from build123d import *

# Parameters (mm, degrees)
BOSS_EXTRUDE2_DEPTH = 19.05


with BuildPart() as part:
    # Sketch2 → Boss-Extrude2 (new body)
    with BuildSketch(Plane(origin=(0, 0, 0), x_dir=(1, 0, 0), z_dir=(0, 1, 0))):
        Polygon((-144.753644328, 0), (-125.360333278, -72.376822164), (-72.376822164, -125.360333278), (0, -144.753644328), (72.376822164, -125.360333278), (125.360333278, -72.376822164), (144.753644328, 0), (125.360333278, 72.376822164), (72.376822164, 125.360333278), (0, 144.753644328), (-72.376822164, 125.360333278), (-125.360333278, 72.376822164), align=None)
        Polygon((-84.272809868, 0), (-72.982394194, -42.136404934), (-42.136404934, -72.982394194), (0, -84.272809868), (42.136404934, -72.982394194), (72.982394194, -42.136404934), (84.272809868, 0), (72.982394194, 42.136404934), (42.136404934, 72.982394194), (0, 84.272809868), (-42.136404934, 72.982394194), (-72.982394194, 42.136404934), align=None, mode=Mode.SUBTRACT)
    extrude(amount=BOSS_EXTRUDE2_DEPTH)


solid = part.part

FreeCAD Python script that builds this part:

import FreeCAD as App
import Part
import Sketcher

V = App.Vector
Q = App.Units.Quantity


def add_polygon(sketch, points):
    """Adds a closed chain of lines whose ends are joined by coincident constraints."""
    first, n = sketch.GeometryCount, len(points)
    for a, b in zip(points, points[1:] + points[:1]):
        sketch.addGeometry(Part.LineSegment(App.Vector(*a, 0), App.Vector(*b, 0)), False)
    for i in range(n):
        sketch.addConstraint(Sketcher.Constraint("Coincident", first + i, 2, first + (i + 1) % n, 1))

doc = App.newDocument("Part")
body = doc.addObject("PartDesign::Body", "Body")

sketch1 = body.newObject("Sketcher::SketchObject", "Sketch")
sketch1.AttachmentSupport = (doc.getObject("XZ_Plane"), [""])
sketch1.MapMode = "FlatFace"
add_polygon(sketch1, [(-145, 0), (-125, 72), (-72, 125), (0, 145), (72, 125), (125, 72), (145, 0), (125, -72), (72, -125), (0, -145), (-72, -125), (-125, -72)])
add_polygon(sketch1, [(-73, 42), (-84, 0), (-73, -42), (-42, -73), (0, -84), (42, -73), (73, -42), (84, 0), (73, 42), (42, 73), (0, 84), (-42, 73)])
sketch1.addConstraint([
    Sketcher.Constraint("Symmetric", 0, 2, 6, 2, -1, 1),
    Sketcher.Constraint("Symmetric", 1, 2, 7, 2, -1, 1),
    Sketcher.Constraint("Symmetric", 2, 2, 8, 2, -1, 1),
    Sketcher.Constraint("Symmetric", 3, 2, 9, 2, -1, 1),
    Sketcher.Constraint("Symmetric", 4, 2, 10, 2, -1, 1),
    Sketcher.Constraint("Symmetric", 5, 2, 11, 2, -1, 1),
    Sketcher.Constraint("Symmetric", 12, 2, 18, 2, -1, 1),
    Sketcher.Constraint("Symmetric", 13, 2, 19, 2, -1, 1),
    Sketcher.Constraint("Symmetric", 14, 2, 20, 2, -1, 1),
    Sketcher.Constraint("Symmetric", 15, 2, 21, 2, -1, 1),
    Sketcher.Constraint("Symmetric", 16, 2, 22, 2, -1, 1),
    Sketcher.Constraint("Symmetric", 17, 2, 23, 2, -1, 1),
    Sketcher.Constraint("Symmetric", 1, 2, 3, 2, -2),
    Sketcher.Constraint("Symmetric", 0, 2, 4, 2, -2),
    Sketcher.Constraint("Symmetric", 14, 2, 16, 2, -2),
    Sketcher.Constraint("Symmetric", 13, 2, 17, 2, -2),
    Sketcher.Constraint("PointOnObject", 2, 2, -2),
    Sketcher.Constraint("PointOnObject", 5, 2, -1),
    Sketcher.Constraint("PointOnObject", 12, 2, -1),
    Sketcher.Constraint("PointOnObject", 15, 2, -2),
    Sketcher.Constraint("Perpendicular", 0, 3),
    Sketcher.Constraint("Perpendicular", 1, 4),
    Sketcher.Constraint("Perpendicular", 9, 12),
    Sketcher.Constraint("Parallel", 10, 14),
    Sketcher.Constraint("Perpendicular", 12, 15),
    Sketcher.Constraint("Equal", 0, 1),
    Sketcher.Constraint("Equal", 1, 2),
    Sketcher.Constraint("Equal", 13, 14),
    Sketcher.Constraint("Equal", 14, 15),
    Sketcher.Constraint("Angle", 0, Q("75 deg")),
    Sketcher.Constraint("Distance", 0, Q("2.95 in")),
    Sketcher.Constraint("DistanceX", 12, 2, -1, 1, 84.27281),
])
pad1 = body.newObject("PartDesign::Pad", "Pad")
pad1.Profile = sketch1
pad1.Length = Q("0.75 in")
pad1.Reversed = True

doc.recompute()
